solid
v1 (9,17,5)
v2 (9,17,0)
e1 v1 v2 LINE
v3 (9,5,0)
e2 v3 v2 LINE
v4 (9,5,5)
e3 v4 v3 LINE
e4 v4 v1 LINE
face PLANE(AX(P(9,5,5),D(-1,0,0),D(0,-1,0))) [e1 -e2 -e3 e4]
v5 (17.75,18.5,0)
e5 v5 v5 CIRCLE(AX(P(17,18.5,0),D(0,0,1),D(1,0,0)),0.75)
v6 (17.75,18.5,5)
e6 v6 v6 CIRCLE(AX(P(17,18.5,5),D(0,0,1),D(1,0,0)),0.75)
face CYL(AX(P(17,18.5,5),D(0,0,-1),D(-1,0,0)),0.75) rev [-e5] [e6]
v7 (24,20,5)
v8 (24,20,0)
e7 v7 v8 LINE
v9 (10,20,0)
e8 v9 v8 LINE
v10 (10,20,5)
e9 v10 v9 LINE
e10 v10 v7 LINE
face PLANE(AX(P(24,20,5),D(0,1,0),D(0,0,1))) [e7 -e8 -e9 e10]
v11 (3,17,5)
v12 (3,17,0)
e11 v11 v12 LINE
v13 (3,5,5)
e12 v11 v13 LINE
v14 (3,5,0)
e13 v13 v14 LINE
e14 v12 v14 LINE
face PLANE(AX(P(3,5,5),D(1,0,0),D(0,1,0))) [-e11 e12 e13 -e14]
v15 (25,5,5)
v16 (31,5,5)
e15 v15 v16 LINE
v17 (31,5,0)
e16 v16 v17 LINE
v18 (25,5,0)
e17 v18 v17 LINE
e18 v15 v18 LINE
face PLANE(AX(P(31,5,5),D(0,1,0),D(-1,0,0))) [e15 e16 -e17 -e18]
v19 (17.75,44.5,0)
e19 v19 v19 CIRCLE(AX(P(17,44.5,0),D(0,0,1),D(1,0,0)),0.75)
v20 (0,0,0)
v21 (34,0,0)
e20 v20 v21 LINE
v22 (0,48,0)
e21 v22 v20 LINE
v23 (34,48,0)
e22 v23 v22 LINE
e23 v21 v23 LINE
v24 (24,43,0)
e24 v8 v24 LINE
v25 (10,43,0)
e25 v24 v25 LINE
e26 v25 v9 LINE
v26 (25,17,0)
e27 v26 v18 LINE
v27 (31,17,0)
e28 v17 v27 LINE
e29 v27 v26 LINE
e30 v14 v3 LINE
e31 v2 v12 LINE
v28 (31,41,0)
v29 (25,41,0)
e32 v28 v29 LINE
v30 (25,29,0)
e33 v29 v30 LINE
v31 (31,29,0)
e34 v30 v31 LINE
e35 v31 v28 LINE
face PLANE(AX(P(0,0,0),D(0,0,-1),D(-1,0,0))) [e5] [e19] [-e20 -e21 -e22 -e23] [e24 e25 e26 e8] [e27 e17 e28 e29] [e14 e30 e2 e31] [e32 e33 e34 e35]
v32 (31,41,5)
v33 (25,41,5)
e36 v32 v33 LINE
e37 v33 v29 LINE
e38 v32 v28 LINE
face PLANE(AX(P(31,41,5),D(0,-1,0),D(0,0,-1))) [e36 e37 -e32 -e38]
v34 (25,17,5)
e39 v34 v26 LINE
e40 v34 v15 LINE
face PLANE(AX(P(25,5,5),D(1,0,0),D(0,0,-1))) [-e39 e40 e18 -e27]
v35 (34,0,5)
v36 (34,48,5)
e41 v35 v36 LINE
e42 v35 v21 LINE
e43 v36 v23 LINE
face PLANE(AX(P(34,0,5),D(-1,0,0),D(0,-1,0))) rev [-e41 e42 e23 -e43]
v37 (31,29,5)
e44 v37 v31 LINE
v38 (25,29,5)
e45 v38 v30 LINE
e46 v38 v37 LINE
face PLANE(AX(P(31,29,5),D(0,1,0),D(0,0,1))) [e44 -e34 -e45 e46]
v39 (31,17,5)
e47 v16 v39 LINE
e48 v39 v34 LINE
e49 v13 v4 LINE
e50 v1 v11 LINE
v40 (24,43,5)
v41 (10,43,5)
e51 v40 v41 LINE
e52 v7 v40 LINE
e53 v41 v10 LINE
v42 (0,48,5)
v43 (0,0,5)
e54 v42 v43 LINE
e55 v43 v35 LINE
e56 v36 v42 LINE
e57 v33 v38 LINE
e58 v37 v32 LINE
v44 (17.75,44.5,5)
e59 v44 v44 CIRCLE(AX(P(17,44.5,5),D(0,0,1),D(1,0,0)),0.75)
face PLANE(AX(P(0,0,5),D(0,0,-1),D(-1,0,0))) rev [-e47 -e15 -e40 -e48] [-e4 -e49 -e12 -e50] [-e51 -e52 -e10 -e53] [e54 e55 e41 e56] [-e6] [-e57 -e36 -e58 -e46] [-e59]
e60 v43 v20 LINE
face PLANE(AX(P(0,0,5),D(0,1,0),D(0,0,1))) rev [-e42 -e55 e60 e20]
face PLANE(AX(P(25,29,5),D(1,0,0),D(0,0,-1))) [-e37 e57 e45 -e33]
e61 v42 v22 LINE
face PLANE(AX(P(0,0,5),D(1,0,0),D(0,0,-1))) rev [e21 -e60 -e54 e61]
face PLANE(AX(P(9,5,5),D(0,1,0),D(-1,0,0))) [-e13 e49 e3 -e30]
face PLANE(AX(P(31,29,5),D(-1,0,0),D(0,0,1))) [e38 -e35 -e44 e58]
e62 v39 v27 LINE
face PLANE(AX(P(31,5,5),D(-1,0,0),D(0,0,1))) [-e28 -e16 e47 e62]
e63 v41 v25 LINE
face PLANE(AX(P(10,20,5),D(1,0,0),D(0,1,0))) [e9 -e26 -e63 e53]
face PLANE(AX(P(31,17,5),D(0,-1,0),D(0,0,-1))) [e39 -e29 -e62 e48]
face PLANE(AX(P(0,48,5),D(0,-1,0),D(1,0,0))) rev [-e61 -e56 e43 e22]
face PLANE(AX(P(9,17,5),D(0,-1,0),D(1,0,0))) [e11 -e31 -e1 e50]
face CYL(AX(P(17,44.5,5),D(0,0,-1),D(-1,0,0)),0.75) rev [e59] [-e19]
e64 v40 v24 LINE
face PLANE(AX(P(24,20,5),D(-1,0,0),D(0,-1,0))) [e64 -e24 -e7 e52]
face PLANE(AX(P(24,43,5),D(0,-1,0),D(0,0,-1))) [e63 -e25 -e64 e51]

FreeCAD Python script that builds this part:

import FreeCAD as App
import Part
import Sketcher
from FreeCAD import Vector

doc = App.newDocument("Part")
body = doc.addObject("PartDesign::Body", "Body")

# Sketch on XY plane
sketch1 = doc.addObject("Sketcher::SketchObject", "Sketch")
body.addObject(sketch1)
sketch1.AttachmentSupport = (doc.XY_Plane, [""])
sketch1.MapMode = "FlatFace"
sketch1.addGeometry([
    Part.LineSegment(Vector(0, 48, 0), Vector(0, 0, 0)),  # 0
    Part.LineSegment(Vector(0, 0, 0), Vector(34, 0, 0)),  # 1
    Part.LineSegment(Vector(34, 0, 0), Vector(34, 48, 0)),  # 2
    Part.LineSegment(Vector(34, 48, 0), Vector(0, 48, 0)),  # 3
    Part.LineSegment(Vector(9, 5, 0), Vector(3, 5, 0)),  # 4
    Part.LineSegment(Vector(3, 5, 0), Vector(3, 17, 0)),  # 5
    Part.LineSegment(Vector(3, 17, 0), Vector(9, 17, 0)),  # 6
    Part.LineSegment(Vector(9, 17, 0), Vector(9, 5, 0)),  # 7
    Part.LineSegment(Vector(31, 5, 0), Vector(25, 5, 0)),  # 8
    Part.LineSegment(Vector(25, 5, 0), Vector(25, 17, 0)),  # 9
    Part.LineSegment(Vector(25, 17, 0), Vector(31, 17, 0)),  # 10
    Part.LineSegment(Vector(31, 17, 0), Vector(31, 5, 0)),  # 11
    Part.Circle(Vector(17, 18.5, 0), Vector(0, 0, 1), 0.75),  # 12
    Part.LineSegment(Vector(24, 20, 0), Vector(10, 20, 0)),  # 13
    Part.LineSegment(Vector(10, 20, 0), Vector(10, 43, 0)),  # 14
    Part.LineSegment(Vector(10, 43, 0), Vector(24, 43, 0)),  # 15
    Part.LineSegment(Vector(24, 43, 0), Vector(24, 20, 0)),  # 16
    Part.LineSegment(Vector(31, 29, 0), Vector(25, 29, 0)),  # 17
    Part.LineSegment(Vector(25, 29, 0), Vector(25, 41, 0)),  # 18
    Part.LineSegment(Vector(25, 41, 0), Vector(31, 41, 0)),  # 19
    Part.LineSegment(Vector(31, 41, 0), Vector(31, 29, 0)),  # 20
    Part.Circle(Vector(17, 44.5, 0), Vector(0, 0, 1), 0.75),  # 21
], False)
sketch1.addConstraint([
    Sketcher.Constraint("Coincident", 0, 2, 1, 1),
    Sketcher.Constraint("Coincident", 1, 2, 2, 1),
    Sketcher.Constraint("Coincident", 2, 2, 3, 1),
    Sketcher.Constraint("Coincident", 3, 2, 0, 1),
    Sketcher.Constraint("Coincident", 4, 2, 5, 1),
    Sketcher.Constraint("Coincident", 5, 2, 6, 1),
    Sketcher.Constraint("Coincident", 6, 2, 7, 1),
    Sketcher.Constraint("Coincident", 7, 2, 4, 1),
    Sketcher.Constraint("Coincident", 8, 2, 9, 1),
    Sketcher.Constraint("Coincident", 9, 2, 10, 1),
    Sketcher.Constraint("Coincident", 10, 2, 11, 1),
    Sketcher.Constraint("Coincident", 11, 2, 8, 1),
    Sketcher.Constraint("Coincident", 13, 2, 14, 1),
    Sketcher.Constraint("Coincident", 14, 2, 15, 1),
    Sketcher.Constraint("Coincident", 15, 2, 16, 1),
    Sketcher.Constraint("Coincident", 16, 2, 13, 1),
    Sketcher.Constraint("Coincident", 17, 2, 18, 1),
    Sketcher.Constraint("Coincident", 18, 2, 19, 1),
    Sketcher.Constraint("Coincident", 19, 2, 20, 1),
    Sketcher.Constraint("Coincident", 20, 2, 17, 1),
    Sketcher.Constraint("Vertical", 0),
    Sketcher.Constraint("Horizontal", 1),
    Sketcher.Constraint("Vertical", 2),
    Sketcher.Constraint("Horizontal", 3),
    Sketcher.Constraint("Horizontal", 4),
    Sketcher.Constraint("Vertical", 5),
    Sketcher.Constraint("Horizontal", 6),
    Sketcher.Constraint("Vertical", 7),
    Sketcher.Constraint("Horizontal", 8),
    Sketcher.Constraint("Vertical", 9),
    Sketcher.Constraint("Horizontal", 10),
    Sketcher.Constraint("Vertical", 11),
    Sketcher.Constraint("Horizontal", 13),
    Sketcher.Constraint("Vertical", 14),
    Sketcher.Constraint("Horizontal", 15),
    Sketcher.Constraint("Vertical", 16),
    Sketcher.Constraint("Horizontal", 17),
    Sketcher.Constraint("Vertical", 18),
    Sketcher.Constraint("Horizontal", 19),
    Sketcher.Constraint("Vertical", 20),
    Sketcher.Constraint("Coincident", 0, 2, -1, 1),
    Sketcher.Constraint("Equal", 12, 21),
    Sketcher.Constraint("Horizontal", 7, 2, 8, 2),
    Sketcher.Constraint("Horizontal", 6, 2, 9, 2),
    Sketcher.Constraint("Vertical", 12, 3, 21, 3),
    Sketcher.Constraint("Vertical", 9, 2, 17, 2),
    Sketcher.Constraint("Vertical", 11, 2, 19, 2),
    Sketcher.Constraint("Equal", 6, 8),
    Sketcher.Constraint("Equal", 11, 18),
    Sketcher.Constraint("Diameter", 12, 1.5),
    Sketcher.Constraint("DistanceX", 1, 1, 1, 2, 34.0),
    Sketcher.Constraint("DistanceX", 4, 2, 4, 1, 6.0),
    Sketcher.Constraint("DistanceX", 13, 2, 13, 1, 14.0),
    Sketcher.Constraint("DistanceY", 0, 2, 0, 1, 48.0),
    Sketcher.Constraint("DistanceY", 5, 1, 5, 2, 12.0),
    Sketcher.Constraint("DistanceY", 14, 1, 14, 2, 23.0),
    Sketcher.Constraint("DistanceX", -1, 1, 12, 3, 17.0),
    Sketcher.Constraint("DistanceX", -1, 1, 4, 2, 3.0),
    Sketcher.Constraint("DistanceY", -1, 1, 4, 2, 5.0),
    Sketcher.Constraint("DistanceX", -1, 1, 8, 2, 25.0),
    Sketcher.Constraint("DistanceX", -1, 1, 13, 2, 10.0),
    Sketcher.Constraint("DistanceY", -1, 1, 13, 2, 20.0),
    Sketcher.Constraint("DistanceY", -1, 1, 17, 2, 29.0),
    Sketcher.Constraint("DistanceY", 12, 3, 21, 3, 26.0),
    Sketcher.Constraint("DistanceY", -1, 1, 12, 3, 18.5),
])
pad1 = doc.addObject("PartDesign::Pad", "Pad")
body.addObject(pad1)
pad1.Profile = sketch1
pad1.Length = 5

doc.recompute()
